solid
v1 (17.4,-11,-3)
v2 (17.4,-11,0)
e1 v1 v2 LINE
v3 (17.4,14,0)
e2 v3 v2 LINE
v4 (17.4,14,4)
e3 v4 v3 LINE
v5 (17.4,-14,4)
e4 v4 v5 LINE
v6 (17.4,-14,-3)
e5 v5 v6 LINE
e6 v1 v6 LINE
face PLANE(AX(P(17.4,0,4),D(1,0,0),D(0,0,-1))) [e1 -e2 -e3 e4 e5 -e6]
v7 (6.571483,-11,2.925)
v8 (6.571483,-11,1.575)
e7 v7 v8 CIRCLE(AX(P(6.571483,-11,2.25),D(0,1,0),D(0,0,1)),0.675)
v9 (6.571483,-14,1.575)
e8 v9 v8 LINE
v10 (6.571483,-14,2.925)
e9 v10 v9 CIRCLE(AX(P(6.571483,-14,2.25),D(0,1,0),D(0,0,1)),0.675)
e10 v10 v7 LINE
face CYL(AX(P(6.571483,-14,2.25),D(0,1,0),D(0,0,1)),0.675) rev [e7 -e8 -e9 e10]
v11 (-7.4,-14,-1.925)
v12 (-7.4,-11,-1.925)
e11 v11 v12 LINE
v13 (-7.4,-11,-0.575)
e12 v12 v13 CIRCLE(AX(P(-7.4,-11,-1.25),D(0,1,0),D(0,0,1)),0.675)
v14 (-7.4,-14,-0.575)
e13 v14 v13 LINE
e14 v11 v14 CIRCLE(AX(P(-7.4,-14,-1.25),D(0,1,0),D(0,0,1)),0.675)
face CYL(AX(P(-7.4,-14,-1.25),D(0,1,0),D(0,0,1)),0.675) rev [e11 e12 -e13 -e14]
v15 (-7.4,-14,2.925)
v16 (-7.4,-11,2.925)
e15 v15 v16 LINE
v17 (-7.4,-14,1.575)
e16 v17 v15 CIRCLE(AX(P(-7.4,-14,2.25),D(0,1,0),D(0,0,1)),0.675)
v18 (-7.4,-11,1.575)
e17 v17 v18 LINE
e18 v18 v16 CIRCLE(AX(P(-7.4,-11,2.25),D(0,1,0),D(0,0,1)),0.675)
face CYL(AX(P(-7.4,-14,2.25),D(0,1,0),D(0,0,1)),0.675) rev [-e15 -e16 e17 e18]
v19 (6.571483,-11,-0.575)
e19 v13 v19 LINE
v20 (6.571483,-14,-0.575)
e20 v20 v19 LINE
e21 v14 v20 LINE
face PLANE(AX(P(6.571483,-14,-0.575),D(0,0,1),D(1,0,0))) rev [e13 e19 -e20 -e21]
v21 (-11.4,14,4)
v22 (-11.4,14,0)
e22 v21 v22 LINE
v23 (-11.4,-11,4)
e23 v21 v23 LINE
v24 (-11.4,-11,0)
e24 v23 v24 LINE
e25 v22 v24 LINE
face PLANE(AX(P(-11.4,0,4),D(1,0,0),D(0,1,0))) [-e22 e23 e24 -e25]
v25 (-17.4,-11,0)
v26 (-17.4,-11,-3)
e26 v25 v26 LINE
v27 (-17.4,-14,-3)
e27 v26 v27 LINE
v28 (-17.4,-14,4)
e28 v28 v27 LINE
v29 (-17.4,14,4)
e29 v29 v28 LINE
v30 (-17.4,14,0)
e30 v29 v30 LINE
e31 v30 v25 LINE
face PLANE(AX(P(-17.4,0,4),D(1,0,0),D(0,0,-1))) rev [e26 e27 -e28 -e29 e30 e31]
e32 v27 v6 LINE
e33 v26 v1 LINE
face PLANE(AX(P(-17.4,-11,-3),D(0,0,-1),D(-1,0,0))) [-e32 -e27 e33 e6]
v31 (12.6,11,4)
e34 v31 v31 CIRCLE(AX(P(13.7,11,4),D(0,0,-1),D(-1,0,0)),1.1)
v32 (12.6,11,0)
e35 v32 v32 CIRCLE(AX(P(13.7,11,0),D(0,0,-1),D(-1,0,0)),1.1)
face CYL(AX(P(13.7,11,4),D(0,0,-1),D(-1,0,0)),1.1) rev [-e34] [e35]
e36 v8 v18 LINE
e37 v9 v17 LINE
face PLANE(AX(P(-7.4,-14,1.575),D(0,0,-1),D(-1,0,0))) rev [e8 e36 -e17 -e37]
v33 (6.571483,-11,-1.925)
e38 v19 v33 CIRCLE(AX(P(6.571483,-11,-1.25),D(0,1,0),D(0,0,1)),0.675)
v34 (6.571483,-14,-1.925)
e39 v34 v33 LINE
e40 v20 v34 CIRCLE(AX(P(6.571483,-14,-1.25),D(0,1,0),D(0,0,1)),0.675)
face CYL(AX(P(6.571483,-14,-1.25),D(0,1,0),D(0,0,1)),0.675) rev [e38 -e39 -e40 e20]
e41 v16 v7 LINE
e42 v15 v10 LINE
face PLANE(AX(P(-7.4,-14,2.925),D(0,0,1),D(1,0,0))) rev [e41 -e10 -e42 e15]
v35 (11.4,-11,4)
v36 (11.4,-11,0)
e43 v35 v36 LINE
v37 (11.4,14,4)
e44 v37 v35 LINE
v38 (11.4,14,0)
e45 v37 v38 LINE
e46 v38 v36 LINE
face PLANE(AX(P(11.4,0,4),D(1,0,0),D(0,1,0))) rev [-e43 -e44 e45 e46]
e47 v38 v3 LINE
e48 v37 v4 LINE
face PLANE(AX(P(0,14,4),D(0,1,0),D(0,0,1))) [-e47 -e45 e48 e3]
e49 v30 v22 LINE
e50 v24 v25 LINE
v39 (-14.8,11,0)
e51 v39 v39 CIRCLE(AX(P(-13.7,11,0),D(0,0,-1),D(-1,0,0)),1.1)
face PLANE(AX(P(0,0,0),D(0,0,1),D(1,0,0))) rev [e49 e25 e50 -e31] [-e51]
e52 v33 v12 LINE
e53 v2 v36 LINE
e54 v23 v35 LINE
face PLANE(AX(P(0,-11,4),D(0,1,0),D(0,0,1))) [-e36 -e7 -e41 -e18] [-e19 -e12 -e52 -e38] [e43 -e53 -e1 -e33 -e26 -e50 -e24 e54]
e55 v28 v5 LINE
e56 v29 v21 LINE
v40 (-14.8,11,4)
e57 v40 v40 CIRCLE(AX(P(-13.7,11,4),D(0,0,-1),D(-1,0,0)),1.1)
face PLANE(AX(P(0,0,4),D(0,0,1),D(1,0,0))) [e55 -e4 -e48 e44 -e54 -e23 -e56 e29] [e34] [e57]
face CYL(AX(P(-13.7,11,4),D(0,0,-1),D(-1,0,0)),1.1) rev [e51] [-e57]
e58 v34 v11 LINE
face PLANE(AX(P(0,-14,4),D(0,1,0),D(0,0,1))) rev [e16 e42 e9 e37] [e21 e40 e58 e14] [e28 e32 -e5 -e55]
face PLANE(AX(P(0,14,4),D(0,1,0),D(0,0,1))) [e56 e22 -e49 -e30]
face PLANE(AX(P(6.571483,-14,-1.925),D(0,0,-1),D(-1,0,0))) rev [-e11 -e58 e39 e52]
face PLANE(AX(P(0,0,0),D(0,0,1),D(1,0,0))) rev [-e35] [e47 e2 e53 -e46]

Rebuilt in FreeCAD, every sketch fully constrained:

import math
import FreeCAD as App
import Part
import Sketcher

V = App.Vector

doc = App.newDocument("Part")
body = doc.addObject("PartDesign::Body", "Body")

# Sketch on XY plane
sketch1 = body.newObject("Sketcher::SketchObject", "Sketch")
sketch1.AttachmentSupport = (doc.getObject("XY_Plane"), [""])
sketch1.MapMode = "FlatFace"
sketch1.addGeometry(Part.LineSegment(V(-17, 14, 0), V(-17, -14, 0)), False)
sketch1.addGeometry(Part.LineSegment(V(-17, -14, 0), V(17, -14, 0)), False)
sketch1.addGeometry(Part.LineSegment(V(17, -14, 0), V(17, 14, 0)), False)
sketch1.addGeometry(Part.LineSegment(V(17, 14, 0), V(11, 14, 0)), False)
sketch1.addGeometry(Part.LineSegment(V(11, 14, 0), V(11, -11, 0)), False)
sketch1.addGeometry(Part.LineSegment(V(11, -11, 0), V(-11, -11, 0)), False)
sketch1.addGeometry(Part.LineSegment(V(-11, -11, 0), V(-11, 14, 0)), False)
sketch1.addGeometry(Part.LineSegment(V(-11, 14, 0), V(-17, 14, 0)), False)
sketch1.addConstraint(Sketcher.Constraint("Coincident", 0, 2, 1, 1))
sketch1.addConstraint(Sketcher.Constraint("Coincident", 1, 2, 2, 1))
sketch1.addConstraint(Sketcher.Constraint("Coincident", 2, 2, 3, 1))
sketch1.addConstraint(Sketcher.Constraint("Coincident", 3, 2, 4, 1))
sketch1.addConstraint(Sketcher.Constraint("Coincident", 4, 2, 5, 1))
sketch1.addConstraint(Sketcher.Constraint("Coincident", 5, 2, 6, 1))
sketch1.addConstraint(Sketcher.Constraint("Coincident", 6, 2, 7, 1))
sketch1.addConstraint(Sketcher.Constraint("Coincident", 7, 2, 0, 1))
sketch1.addConstraint(Sketcher.Constraint("Vertical", 0))
sketch1.addConstraint(Sketcher.Constraint("Horizontal", 1))
sketch1.addConstraint(Sketcher.Constraint("Vertical", 2))
sketch1.addConstraint(Sketcher.Constraint("Horizontal", 3))
sketch1.addConstraint(Sketcher.Constraint("Vertical", 4))
sketch1.addConstraint(Sketcher.Constraint("Horizontal", 5))
sketch1.addConstraint(Sketcher.Constraint("Vertical", 6))
sketch1.addConstraint(Sketcher.Constraint("Horizontal", 7))
sketch1.addConstraint(Sketcher.Constraint("Symmetric", 0, 2, 2, 2, -1, 1))
sketch1.addConstraint(Sketcher.Constraint("Symmetric", 3, 2, 6, 2, -2))
sketch1.addConstraint(Sketcher.Constraint("DistanceX", 3, 2, 3, 1, 6.0))
sketch1.addConstraint(Sketcher.Constraint("DistanceY", 0, 2, 0, 1, 28.0))
sketch1.addConstraint(Sketcher.Constraint("DistanceY", 4, 2, 4, 1, 25.0))
sketch1.addConstraint(Sketcher.Constraint("DistanceX", 1, 1, 1, 2, 34.8))
pad1 = body.newObject("PartDesign::Pad", "Pad")
pad1.Profile = sketch1
pad1.Length = 4

# Sketch on XY plane
sketch2 = body.newObject("Sketcher::SketchObject", "Sketch001")
sketch2.AttachmentSupport = (doc.getObject("XY_Plane"), [""])
sketch2.MapMode = "FlatFace"
sketch2.addGeometry(Part.Circle(V(13.7, 11, 0), V(0, 0, 1), 1.1), False)
sketch2.addGeometry(Part.Circle(V(-13.7, 11, 0), V(0, 0, 1), 1.1), False)
sketch2.addConstraint(Sketcher.Constraint("Equal", 0, 1))
sketch2.addConstraint(Sketcher.Constraint("Symmetric", 0, 3, 1, 3, -2))
sketch2.addConstraint(Sketcher.Constraint("Diameter", 0, 2.2))
sketch2.addConstraint(Sketcher.Constraint("DistanceY", -1, 1, 0, 3, 11.0))
sketch2.addConstraint(Sketcher.Constraint("DistanceX", -1, 1, 0, 3, 13.7))
pocket1 = body.newObject("PartDesign::Pocket", "Pocket")
pocket1.Profile = sketch2
pocket1.Type = "ThroughAll"
pocket1.Reversed = True

# Sketch on XZ plane
sketch3 = body.newObject("Sketcher::SketchObject", "Sketch002")
sketch3.AttachmentSupport = (doc.getObject("XZ_Plane"), [""])
sketch3.MapMode = "FlatFace"
sketch3.AttachmentOffset = App.Placement(V(0, 0, 14), App.Rotation())
sketch3.addGeometry(Part.LineSegment(V(-17.4, 0, 0), V(-17.4, -3, 0)), False)
sketch3.addGeometry(Part.LineSegment(V(-17.4, -3, 0), V(17.4, -3, 0)), False)
sketch3.addGeometry(Part.LineSegment(V(17.4, -3, 0), V(17.4, 0, 0)), False)
sketch3.addGeometry(Part.LineSegment(V(17.4, 0, 0), V(-17.4, 0, 0)), False)
sketch3.addConstraint(Sketcher.Constraint("Coincident", 0, 2, 1, 1))
sketch3.addConstraint(Sketcher.Constraint("Coincident", 1, 2, 2, 1))
sketch3.addConstraint(Sketcher.Constraint("Coincident", 2, 2, 3, 1))
sketch3.addConstraint(Sketcher.Constraint("Coincident", 3, 2, 0, 1))
sketch3.addConstraint(Sketcher.Constraint("Vertical", 0))
sketch3.addConstraint(Sketcher.Constraint("Horizontal", 1))
sketch3.addConstraint(Sketcher.Constraint("Vertical", 2))
sketch3.addConstraint(Sketcher.Constraint("Horizontal", 3))
sketch3.addConstraint(Sketcher.Constraint("Symmetric", 2, 2, 3, 2, -1, 1))
sketch3.addConstraint(Sketcher.Constraint("DistanceY", 0, 2, 0, 1, 3.0))
sketch3.addConstraint(Sketcher.Constraint("DistanceX", 1, 1, 1, 2, 34.8))
pad2 = body.newObject("PartDesign::Pad", "Pad001")
pad2.Profile = sketch3
pad2.Length = 3
pad2.Reversed = True

# Sketch on XZ plane
sketch4 = body.newObject("Sketcher::SketchObject", "Sketch003")
sketch4.AttachmentSupport = (doc.getObject("XZ_Plane"), [""])
sketch4.MapMode = "FlatFace"
sketch4.AttachmentOffset = App.Placement(V(0, 0, 11), App.Rotation())
sketch4.addGeometry(Part.LineSegment(V(-7.4, -0.6, 0), V(6.6, -0.6, 0)), False)
sketch4.addGeometry(Part.ArcOfCircle(Part.Circle(V(6.6, -1.2, 0), V(0, 0, 1), 0.7), math.radians(-90), math.radians(90)), False)
sketch4.addGeometry(Part.LineSegment(V(6.6, -1.9, 0), V(-7.4, -1.9, 0)), False)
sketch4.addGeometry(Part.ArcOfCircle(Part.Circle(V(-7.4, -1.2, 0), V(0, 0, 1), 0.7), math.radians(90), math.radians(270)), False)
sketch4.addGeometry(Part.LineSegment(V(6.6, 1.6, 0), V(-7.4, 1.6, 0)), False)
sketch4.addGeometry(Part.ArcOfCircle(Part.Circle(V(-7.4, 2.2, 0), V(0, 0, 1), 0.7), math.radians(90), math.radians(270)), False)
sketch4.addGeometry(Part.LineSegment(V(-7.4, 2.9, 0), V(6.6, 2.9, 0)), False)
sketch4.addGeometry(Part.ArcOfCircle(Part.Circle(V(6.6, 2.2, 0), V(0, 0, 1), 0.7), math.radians(-90), math.radians(90)), False)
sketch4.addConstraint(Sketcher.Constraint("Tangent", 0, 2, 1, 2))
sketch4.addConstraint(Sketcher.Constraint("Tangent", 1, 1, 2, 1))
sketch4.addConstraint(Sketcher.Constraint("Tangent", 2, 2, 3, 2))
sketch4.addConstraint(Sketcher.Constraint("Tangent", 3, 1, 0, 1))
sketch4.addConstraint(Sketcher.Constraint("Tangent", 4, 2, 5, 2))
sketch4.addConstraint(Sketcher.Constraint("Tangent", 5, 1, 6, 1))
sketch4.addConstraint(Sketcher.Constraint("Tangent", 6, 2, 7, 2))
sketch4.addConstraint(Sketcher.Constraint("Tangent", 7, 1, 4, 1))
sketch4.addConstraint(Sketcher.Constraint("Horizontal", 0))
sketch4.addConstraint(Sketcher.Constraint("Horizontal", 2))
sketch4.addConstraint(Sketcher.Constraint("Horizontal", 4))
sketch4.addConstraint(Sketcher.Constraint("Horizontal", 6))
sketch4.addConstraint(Sketcher.Constraint("Equal", 3, 5))
sketch4.addConstraint(Sketcher.Constraint("Vertical", 3, 3, 5, 3))
sketch4.addConstraint(Sketcher.Constraint("Vertical", 1, 3, 7, 3))
sketch4.addConstraint(Sketcher.Constraint("Radius", 1, 0.675))
sketch4.addConstraint(Sketcher.Constraint("DistanceX", 3, 3, -1, 1, 7.4))
sketch4.addConstraint(Sketcher.Constraint("DistanceY", 3, 3, 5, 3, 3.5))
sketch4.addConstraint(Sketcher.Constraint("DistanceY", 1, 3, -1, 1, 1.25))
sketch4.addConstraint(Sketcher.Constraint("DistanceX", 0, 1, 0, 2, 13.971483))
pocket2 = body.newObject("PartDesign::Pocket", "Pocket001")
pocket2.Profile = sketch4
pocket2.Type = "ThroughAll"
pocket2.Reversed = True

doc.recompute()
